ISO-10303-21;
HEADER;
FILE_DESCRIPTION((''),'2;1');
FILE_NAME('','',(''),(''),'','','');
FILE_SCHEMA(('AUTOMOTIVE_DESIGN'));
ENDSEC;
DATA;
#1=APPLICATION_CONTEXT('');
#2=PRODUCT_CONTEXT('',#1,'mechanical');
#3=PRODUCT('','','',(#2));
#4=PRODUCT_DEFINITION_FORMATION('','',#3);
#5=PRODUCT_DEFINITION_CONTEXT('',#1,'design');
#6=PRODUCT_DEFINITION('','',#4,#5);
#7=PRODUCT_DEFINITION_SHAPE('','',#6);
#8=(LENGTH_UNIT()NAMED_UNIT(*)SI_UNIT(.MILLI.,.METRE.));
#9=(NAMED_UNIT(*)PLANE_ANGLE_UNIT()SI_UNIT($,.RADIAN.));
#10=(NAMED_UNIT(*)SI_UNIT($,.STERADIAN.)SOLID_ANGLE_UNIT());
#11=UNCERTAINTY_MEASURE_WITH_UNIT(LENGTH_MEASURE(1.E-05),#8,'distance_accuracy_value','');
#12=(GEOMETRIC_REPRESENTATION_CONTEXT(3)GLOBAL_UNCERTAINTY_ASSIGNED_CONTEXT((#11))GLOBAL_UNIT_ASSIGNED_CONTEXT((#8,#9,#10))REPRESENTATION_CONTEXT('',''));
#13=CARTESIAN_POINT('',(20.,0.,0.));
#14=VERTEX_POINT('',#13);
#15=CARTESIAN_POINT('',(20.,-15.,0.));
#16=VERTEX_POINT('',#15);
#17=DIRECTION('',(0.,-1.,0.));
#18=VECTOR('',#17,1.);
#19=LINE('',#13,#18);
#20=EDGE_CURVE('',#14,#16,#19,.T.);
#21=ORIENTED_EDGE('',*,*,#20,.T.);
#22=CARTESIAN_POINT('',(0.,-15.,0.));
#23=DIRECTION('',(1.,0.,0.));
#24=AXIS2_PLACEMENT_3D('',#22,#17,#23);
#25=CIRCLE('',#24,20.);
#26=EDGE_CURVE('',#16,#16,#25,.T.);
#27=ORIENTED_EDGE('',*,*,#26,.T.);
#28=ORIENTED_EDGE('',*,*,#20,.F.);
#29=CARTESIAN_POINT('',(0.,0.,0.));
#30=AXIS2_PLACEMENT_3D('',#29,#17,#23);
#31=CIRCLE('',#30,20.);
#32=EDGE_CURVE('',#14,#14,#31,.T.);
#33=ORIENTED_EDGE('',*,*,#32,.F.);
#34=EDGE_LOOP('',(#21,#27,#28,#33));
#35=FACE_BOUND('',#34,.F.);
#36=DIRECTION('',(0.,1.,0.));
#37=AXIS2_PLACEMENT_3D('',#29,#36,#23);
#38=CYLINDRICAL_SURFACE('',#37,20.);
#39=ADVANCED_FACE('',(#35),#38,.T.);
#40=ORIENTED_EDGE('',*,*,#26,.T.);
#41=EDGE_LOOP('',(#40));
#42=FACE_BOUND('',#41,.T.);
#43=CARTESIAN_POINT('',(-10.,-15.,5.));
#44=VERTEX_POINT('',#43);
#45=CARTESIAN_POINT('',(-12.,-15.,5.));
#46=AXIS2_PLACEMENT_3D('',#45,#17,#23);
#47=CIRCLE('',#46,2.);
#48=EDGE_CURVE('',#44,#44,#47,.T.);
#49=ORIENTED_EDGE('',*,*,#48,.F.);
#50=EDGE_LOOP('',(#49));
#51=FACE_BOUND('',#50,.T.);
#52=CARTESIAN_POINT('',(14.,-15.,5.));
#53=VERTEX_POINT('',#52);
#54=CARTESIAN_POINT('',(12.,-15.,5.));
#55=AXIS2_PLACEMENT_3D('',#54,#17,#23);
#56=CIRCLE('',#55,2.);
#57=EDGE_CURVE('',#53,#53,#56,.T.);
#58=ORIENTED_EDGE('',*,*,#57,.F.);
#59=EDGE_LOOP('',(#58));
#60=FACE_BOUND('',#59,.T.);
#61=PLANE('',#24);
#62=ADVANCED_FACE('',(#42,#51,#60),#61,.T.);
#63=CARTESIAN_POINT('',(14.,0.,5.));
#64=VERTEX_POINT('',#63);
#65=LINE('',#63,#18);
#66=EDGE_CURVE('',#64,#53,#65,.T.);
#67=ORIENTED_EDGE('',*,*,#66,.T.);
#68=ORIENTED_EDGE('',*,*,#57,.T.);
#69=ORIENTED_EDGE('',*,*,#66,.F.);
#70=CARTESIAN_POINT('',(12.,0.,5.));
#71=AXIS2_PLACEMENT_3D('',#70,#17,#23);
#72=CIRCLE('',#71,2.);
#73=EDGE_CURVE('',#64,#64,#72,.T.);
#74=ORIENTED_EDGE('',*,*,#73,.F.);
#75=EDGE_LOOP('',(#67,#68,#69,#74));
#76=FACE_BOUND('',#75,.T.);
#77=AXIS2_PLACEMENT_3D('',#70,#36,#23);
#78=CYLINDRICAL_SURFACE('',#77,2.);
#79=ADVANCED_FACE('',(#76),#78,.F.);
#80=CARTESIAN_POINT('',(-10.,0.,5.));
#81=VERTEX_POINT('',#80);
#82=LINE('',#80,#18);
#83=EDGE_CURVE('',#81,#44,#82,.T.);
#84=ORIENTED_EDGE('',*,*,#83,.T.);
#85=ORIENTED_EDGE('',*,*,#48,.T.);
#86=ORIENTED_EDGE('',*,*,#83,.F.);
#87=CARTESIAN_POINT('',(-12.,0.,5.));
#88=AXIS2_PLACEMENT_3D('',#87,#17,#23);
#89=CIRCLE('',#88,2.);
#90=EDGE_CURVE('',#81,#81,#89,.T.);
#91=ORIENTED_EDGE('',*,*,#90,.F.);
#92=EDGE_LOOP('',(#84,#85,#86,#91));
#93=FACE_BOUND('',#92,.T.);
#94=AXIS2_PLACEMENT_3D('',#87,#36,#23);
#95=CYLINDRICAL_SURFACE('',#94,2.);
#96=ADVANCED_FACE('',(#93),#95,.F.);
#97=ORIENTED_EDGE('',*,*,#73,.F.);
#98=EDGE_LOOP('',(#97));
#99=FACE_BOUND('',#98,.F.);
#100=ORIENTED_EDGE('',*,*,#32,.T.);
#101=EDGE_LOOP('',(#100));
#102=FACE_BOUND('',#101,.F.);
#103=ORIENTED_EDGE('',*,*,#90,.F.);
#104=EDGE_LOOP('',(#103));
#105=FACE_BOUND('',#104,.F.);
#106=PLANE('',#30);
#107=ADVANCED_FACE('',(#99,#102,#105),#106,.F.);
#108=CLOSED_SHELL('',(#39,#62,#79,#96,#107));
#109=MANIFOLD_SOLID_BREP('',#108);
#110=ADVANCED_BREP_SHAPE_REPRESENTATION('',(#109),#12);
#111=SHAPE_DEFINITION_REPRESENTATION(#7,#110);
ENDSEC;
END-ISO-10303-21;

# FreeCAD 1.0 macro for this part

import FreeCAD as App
import Part
import Sketcher
from FreeCAD import Vector

doc = App.newDocument("Part")
body = doc.addObject("PartDesign::Body", "Body")

sketch1 = body.newObject("Sketcher::SketchObject", "Sketch")
sketch1.AttachmentSupport = (doc.getObject("XZ_Plane"), [""])
sketch1.MapMode = "FlatFace"
sketch1.addGeometry([
    Part.Circle(Vector(0, 0, 0), Vector(0, 0, 1), 20),
    Part.Circle(Vector(-12, 5, 0), Vector(0, 0, 1), 2),
    Part.Circle(Vector(12, 5, 0), Vector(0, 0, 1), 2),
], False)
sketch1.addConstraint([
    Sketcher.Constraint("Coincident", 0, 3, -1, 1),
    Sketcher.Constraint("Equal", 1, 2),
    Sketcher.Constraint("Symmetric", 1, 3, 2, 3, -2),
    Sketcher.Constraint("Diameter", 0, 40.0),
    Sketcher.Constraint("Diameter", 1, 4.0),
    Sketcher.Constraint("DistanceX", 1, 3, -1, 1, 12.0),
    Sketcher.Constraint("DistanceY", -1, 1, 1, 3, 5.0),
])
pad1 = body.newObject("PartDesign::Pad", "Pad")
pad1.Profile = sketch1
pad1.Length = 15

doc.recompute()
